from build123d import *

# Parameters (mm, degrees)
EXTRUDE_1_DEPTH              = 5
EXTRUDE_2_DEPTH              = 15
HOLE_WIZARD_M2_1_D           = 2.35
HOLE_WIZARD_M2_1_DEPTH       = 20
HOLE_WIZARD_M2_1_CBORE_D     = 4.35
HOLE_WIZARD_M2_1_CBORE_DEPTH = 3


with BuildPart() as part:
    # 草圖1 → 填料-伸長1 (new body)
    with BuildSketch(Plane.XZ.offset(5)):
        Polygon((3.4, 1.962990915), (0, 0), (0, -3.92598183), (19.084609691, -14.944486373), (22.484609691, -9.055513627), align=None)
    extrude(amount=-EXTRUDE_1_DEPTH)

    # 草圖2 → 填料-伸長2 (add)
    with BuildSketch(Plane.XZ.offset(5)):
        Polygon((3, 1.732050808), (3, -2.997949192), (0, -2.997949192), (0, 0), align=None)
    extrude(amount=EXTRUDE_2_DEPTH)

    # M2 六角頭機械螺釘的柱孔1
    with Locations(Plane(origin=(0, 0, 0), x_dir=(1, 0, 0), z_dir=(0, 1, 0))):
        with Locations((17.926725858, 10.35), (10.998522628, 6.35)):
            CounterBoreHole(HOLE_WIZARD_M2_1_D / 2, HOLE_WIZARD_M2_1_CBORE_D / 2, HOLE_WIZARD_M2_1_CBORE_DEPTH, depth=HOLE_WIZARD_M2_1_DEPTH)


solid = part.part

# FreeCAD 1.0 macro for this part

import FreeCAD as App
import Part
import Sketcher
from FreeCAD import Vector
Q = App.Units.Quantity

doc = App.newDocument("Part")
body = doc.addObject("PartDesign::Body", "Body")

sketch1 = doc.addObject("Sketcher::SketchObject", "Sketch")
body.addObject(sketch1)
sketch1.AttachmentSupport = (doc.XZ_Plane, [""])
sketch1.MapMode = "FlatFace"
sketch1.AttachmentOffset = App.Placement(Vector(0, 0, 5), App.Rotation())
sketch1.addGeometry(Part.LineSegment(Vector(3.4, 2, 0), Vector(0, 0, 0)), False)
sketch1.addGeometry(Part.LineSegment(Vector(0, 0, 0), Vector(0, -3.9, 0)), False)
sketch1.addGeometry(Part.LineSegment(Vector(0, -3.9, 0), Vector(19.1, -14.9, 0)), False)
sketch1.addGeometry(Part.LineSegment(Vector(19.1, -14.9, 0), Vector(22.5, -9.1, 0)), False)
sketch1.addGeometry(Part.LineSegment(Vector(22.5, -9.1, 0), Vector(3.4, 2, 0)), False)
sketch1.addConstraint(Sketcher.Constraint("Coincident", 0, 2, 1, 1))
sketch1.addConstraint(Sketcher.Constraint("Coincident", 1, 2, 2, 1))
sketch1.addConstraint(Sketcher.Constraint("Coincident", 2, 2, 3, 1))
sketch1.addConstraint(Sketcher.Constraint("Coincident", 3, 2, 4, 1))
sketch1.addConstraint(Sketcher.Constraint("Coincident", 4, 2, 0, 1))
sketch1.addConstraint(Sketcher.Constraint("Vertical", 1))
sketch1.addConstraint(Sketcher.Constraint("Coincident", 0, 2, -1, 1))
sketch1.addConstraint(Sketcher.Constraint("Perpendicular", 2, 3))
sketch1.addConstraint(Sketcher.Constraint("Perpendicular", 3, 4))
sketch1.addConstraint(Sketcher.Constraint("Equal", 2, 4))
sketch1.addConstraint(Sketcher.Constraint("Angle", 0, Q("-150 deg")))
sketch1.addConstraint(Sketcher.Constraint("Angle", 2, Q("-30 deg")))
sketch1.addConstraint(Sketcher.Constraint("Distance", 3, Q("6.8 mm")))
sketch1.addConstraint(Sketcher.Constraint("Distance", 2, Q("22.037009 mm")))
pad1 = doc.addObject("PartDesign::Pad", "Pad")
body.addObject(pad1)
pad1.Profile = sketch1
pad1.Length = 5
pad1.Reversed = True

sketch2 = doc.addObject("Sketcher::SketchObject", "Sketch001")
body.addObject(sketch2)
sketch2.AttachmentSupport = (doc.XZ_Plane, [""])
sketch2.MapMode = "FlatFace"
sketch2.AttachmentOffset = App.Placement(Vector(0, 0, 5), App.Rotation())
sketch2.addGeometry(Part.LineSegment(Vector(3, -3, 0), Vector(3, 1.7, 0)), False)
sketch2.addGeometry(Part.LineSegment(Vector(3, 1.7, 0), Vector(0, 0, 0)), False)
sketch2.addGeometry(Part.LineSegment(Vector(0, 0, 0), Vector(0, -3, 0)), False)
sketch2.addGeometry(Part.LineSegment(Vector(0, -3, 0), Vector(3, -3, 0)), False)
sketch2.addConstraint(Sketcher.Constraint("Coincident", 0, 2, 1, 1))
sketch2.addConstraint(Sketcher.Constraint("Coincident", 1, 2, 2, 1))
sketch2.addConstraint(Sketcher.Constraint("Coincident", 2, 2, 3, 1))
sketch2.addConstraint(Sketcher.Constraint("Coincident", 3, 2, 0, 1))
sketch2.addConstraint(Sketcher.Constraint("Vertical", 0))
sketch2.addConstraint(Sketcher.Constraint("Vertical", 2))
sketch2.addConstraint(Sketcher.Constraint("Horizontal", 3))
sketch2.addConstraint(Sketcher.Constraint("Coincident", 1, 2, -1, 1))
sketch2.addConstraint(Sketcher.Constraint("DistanceX", 3, 1, 3, 2, Q("3 mm")))
sketch2.addConstraint(Sketcher.Constraint("Angle", 1, Q("-150 deg")))
sketch2.addConstraint(Sketcher.Constraint("DistanceY", 0, 1, 0, 2, Q("4.73 mm")))
pad2 = doc.addObject("PartDesign::Pad", "Pad001")
body.addObject(pad2)
pad2.Profile = sketch2
pad2.Length = 15

sketch3 = doc.addObject("Sketcher::SketchObject", "Sketch002")
body.addObject(sketch3)
sketch3.AttachmentSupport = (doc.XZ_Plane, [""])
sketch3.MapMode = "FlatFace"
sketch3.addGeometry(Part.Circle(Vector(17.9, -10.3, 0), Vector(0, 0, 1), 1.2), False)
sketch3.addGeometry(Part.Circle(Vector(11, -6.3, 0), Vector(0, 0, 1), 1.2), False)
sketch3.addConstraint(Sketcher.Constraint("Equal", 0, 1))
sketch3.addConstraint(Sketcher.Constraint("Diameter", 0, Q("2.35 mm")))
sketch3.addConstraint(Sketcher.Constraint("DistanceY", 0, 3, 1, 3, Q("4 mm")))
sketch3.addConstraint(Sketcher.Constraint("DistanceY", 0, 3, -1, 1, Q("10.35 mm")))
sketch3.addConstraint(Sketcher.Constraint("DistanceX", -1, 1, 0, 3, Q("17.926726 mm")))
sketch3.addConstraint(Sketcher.Constraint("DistanceX", -1, 1, 1, 3, Q("10.998523 mm")))
doc.recompute()
hole = doc.addObject("PartDesign::Hole", "Hole")
body.addObject(hole)
hole.Profile = sketch3
hole.ThreadType = "None"
hole.Diameter = 2.35
hole.DepthType = "Dimension"
hole.Depth = 20
hole.DrillPoint = "Flat"
hole.HoleCutType = "Counterbore"
hole.HoleCutDiameter = 4.35
hole.HoleCutDepth = 3
hole.Reversed = True

doc.recompute()
